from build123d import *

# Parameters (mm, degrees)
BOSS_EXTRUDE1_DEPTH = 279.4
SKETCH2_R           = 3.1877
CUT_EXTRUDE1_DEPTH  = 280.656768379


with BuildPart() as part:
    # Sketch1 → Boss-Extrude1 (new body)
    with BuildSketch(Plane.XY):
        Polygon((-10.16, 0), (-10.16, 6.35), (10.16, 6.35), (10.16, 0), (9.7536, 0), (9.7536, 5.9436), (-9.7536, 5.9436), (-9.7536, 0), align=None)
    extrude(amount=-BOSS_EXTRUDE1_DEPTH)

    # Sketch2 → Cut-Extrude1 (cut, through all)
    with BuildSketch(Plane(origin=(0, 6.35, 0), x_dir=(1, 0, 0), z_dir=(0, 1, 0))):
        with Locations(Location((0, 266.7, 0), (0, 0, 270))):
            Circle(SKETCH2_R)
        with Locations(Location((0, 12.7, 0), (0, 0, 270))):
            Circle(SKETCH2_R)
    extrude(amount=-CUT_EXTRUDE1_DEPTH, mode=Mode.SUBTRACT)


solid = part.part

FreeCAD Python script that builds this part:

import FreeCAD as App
import Part
import Sketcher
Q = App.Units.Quantity


def add_polygon(sketch, points):
    """Adds a closed chain of lines whose ends are joined by coincident constraints."""
    first, n = sketch.GeometryCount, len(points)
    for a, b in zip(points, points[1:] + points[:1]):
        sketch.addGeometry(Part.LineSegment(App.Vector(*a, 0), App.Vector(*b, 0)), False)
    for i in range(n):
        sketch.addConstraint(Sketcher.Constraint("Coincident", first + i, 2, first + (i + 1) % n, 1))

doc = App.newDocument("Part")
body = doc.addObject("PartDesign::Body", "Body")

# Sketch on XY plane
sketch1 = doc.addObject("Sketcher::SketchObject", "Sketch")
body.addObject(sketch1)
sketch1.AttachmentSupport = (doc.XY_Plane, [""])
sketch1.MapMode = "FlatFace"
add_polygon(sketch1, [(-10.16, 6.35), (-10.16, 0), (-9.75, 0), (-9.75, 5.94), (9.75, 5.94), (9.75, 0), (10.16, 0), (10.16, 6.35)])  # lines 0-7
sketch1.addConstraint([
    Sketcher.Constraint("Vertical", 0),
    Sketcher.Constraint("Horizontal", 1),
    Sketcher.Constraint("Vertical", 2),
    Sketcher.Constraint("Horizontal", 3),
    Sketcher.Constraint("Vertical", 4),
    Sketcher.Constraint("Horizontal", 5),
    Sketcher.Constraint("Vertical", 6),
    Sketcher.Constraint("Horizontal", 7),
    Sketcher.Constraint("Symmetric", 1, 2, 4, 2, -1, 1),
    Sketcher.Constraint("Symmetric", 0, 2, 5, 2, -2),
    Sketcher.Constraint("DistanceX", 7, 2, 7, 1, Q("0.8 in")),
    Sketcher.Constraint("DistanceY", 0, 2, 0, 1, Q("0.25 in")),
    Sketcher.Constraint("DistanceX", 1, 1, 1, 2, Q("0.016 in")),
    Sketcher.Constraint("DistanceY", 2, 1, 2, 2, Q("0.234 in")),
])
pad1 = doc.addObject("PartDesign::Pad", "Pad")
body.addObject(pad1)
pad1.Profile = sketch1
pad1.Length = Q("11 in")
pad1.Reversed = True

# Sketch on XZ plane
sketch2 = doc.addObject("Sketcher::SketchObject", "Sketch001")
body.addObject(sketch2)
sketch2.AttachmentSupport = (doc.XZ_Plane, [""])
sketch2.MapMode = "FlatFace"
sketch2.AttachmentOffset = App.Placement(App.Vector(0, 0, -0.25 * 25.4), App.Rotation())
sketch2.addGeometry([
    Part.Circle(App.Vector(0, -266.7, 0), App.Vector(0, 0, 1), 3.2),
    Part.Circle(App.Vector(0, -12.7, 0), App.Vector(0, 0, 1), 3.2),
], False)
sketch2.addConstraint([
    Sketcher.Constraint("Equal", 0, 1),
    Sketcher.Constraint("PointOnObject", 0, 3, -2),
    Sketcher.Constraint("PointOnObject", 1, 3, -2),
    Sketcher.Constraint("Diameter", 0, Q("0.251 in")),
    Sketcher.Constraint("DistanceY", 0, 3, 1, 3, Q("10 in")),
    Sketcher.Constraint("DistanceY", 0, 3, -1, 1, Q("10.5 in")),
])
pocket1 = doc.addObject("PartDesign::Pocket", "Pocket")
body.addObject(pocket1)
pocket1.Profile = sketch2
pocket1.Type = "ThroughAll"
pocket1.Reversed = True

doc.recompute()
